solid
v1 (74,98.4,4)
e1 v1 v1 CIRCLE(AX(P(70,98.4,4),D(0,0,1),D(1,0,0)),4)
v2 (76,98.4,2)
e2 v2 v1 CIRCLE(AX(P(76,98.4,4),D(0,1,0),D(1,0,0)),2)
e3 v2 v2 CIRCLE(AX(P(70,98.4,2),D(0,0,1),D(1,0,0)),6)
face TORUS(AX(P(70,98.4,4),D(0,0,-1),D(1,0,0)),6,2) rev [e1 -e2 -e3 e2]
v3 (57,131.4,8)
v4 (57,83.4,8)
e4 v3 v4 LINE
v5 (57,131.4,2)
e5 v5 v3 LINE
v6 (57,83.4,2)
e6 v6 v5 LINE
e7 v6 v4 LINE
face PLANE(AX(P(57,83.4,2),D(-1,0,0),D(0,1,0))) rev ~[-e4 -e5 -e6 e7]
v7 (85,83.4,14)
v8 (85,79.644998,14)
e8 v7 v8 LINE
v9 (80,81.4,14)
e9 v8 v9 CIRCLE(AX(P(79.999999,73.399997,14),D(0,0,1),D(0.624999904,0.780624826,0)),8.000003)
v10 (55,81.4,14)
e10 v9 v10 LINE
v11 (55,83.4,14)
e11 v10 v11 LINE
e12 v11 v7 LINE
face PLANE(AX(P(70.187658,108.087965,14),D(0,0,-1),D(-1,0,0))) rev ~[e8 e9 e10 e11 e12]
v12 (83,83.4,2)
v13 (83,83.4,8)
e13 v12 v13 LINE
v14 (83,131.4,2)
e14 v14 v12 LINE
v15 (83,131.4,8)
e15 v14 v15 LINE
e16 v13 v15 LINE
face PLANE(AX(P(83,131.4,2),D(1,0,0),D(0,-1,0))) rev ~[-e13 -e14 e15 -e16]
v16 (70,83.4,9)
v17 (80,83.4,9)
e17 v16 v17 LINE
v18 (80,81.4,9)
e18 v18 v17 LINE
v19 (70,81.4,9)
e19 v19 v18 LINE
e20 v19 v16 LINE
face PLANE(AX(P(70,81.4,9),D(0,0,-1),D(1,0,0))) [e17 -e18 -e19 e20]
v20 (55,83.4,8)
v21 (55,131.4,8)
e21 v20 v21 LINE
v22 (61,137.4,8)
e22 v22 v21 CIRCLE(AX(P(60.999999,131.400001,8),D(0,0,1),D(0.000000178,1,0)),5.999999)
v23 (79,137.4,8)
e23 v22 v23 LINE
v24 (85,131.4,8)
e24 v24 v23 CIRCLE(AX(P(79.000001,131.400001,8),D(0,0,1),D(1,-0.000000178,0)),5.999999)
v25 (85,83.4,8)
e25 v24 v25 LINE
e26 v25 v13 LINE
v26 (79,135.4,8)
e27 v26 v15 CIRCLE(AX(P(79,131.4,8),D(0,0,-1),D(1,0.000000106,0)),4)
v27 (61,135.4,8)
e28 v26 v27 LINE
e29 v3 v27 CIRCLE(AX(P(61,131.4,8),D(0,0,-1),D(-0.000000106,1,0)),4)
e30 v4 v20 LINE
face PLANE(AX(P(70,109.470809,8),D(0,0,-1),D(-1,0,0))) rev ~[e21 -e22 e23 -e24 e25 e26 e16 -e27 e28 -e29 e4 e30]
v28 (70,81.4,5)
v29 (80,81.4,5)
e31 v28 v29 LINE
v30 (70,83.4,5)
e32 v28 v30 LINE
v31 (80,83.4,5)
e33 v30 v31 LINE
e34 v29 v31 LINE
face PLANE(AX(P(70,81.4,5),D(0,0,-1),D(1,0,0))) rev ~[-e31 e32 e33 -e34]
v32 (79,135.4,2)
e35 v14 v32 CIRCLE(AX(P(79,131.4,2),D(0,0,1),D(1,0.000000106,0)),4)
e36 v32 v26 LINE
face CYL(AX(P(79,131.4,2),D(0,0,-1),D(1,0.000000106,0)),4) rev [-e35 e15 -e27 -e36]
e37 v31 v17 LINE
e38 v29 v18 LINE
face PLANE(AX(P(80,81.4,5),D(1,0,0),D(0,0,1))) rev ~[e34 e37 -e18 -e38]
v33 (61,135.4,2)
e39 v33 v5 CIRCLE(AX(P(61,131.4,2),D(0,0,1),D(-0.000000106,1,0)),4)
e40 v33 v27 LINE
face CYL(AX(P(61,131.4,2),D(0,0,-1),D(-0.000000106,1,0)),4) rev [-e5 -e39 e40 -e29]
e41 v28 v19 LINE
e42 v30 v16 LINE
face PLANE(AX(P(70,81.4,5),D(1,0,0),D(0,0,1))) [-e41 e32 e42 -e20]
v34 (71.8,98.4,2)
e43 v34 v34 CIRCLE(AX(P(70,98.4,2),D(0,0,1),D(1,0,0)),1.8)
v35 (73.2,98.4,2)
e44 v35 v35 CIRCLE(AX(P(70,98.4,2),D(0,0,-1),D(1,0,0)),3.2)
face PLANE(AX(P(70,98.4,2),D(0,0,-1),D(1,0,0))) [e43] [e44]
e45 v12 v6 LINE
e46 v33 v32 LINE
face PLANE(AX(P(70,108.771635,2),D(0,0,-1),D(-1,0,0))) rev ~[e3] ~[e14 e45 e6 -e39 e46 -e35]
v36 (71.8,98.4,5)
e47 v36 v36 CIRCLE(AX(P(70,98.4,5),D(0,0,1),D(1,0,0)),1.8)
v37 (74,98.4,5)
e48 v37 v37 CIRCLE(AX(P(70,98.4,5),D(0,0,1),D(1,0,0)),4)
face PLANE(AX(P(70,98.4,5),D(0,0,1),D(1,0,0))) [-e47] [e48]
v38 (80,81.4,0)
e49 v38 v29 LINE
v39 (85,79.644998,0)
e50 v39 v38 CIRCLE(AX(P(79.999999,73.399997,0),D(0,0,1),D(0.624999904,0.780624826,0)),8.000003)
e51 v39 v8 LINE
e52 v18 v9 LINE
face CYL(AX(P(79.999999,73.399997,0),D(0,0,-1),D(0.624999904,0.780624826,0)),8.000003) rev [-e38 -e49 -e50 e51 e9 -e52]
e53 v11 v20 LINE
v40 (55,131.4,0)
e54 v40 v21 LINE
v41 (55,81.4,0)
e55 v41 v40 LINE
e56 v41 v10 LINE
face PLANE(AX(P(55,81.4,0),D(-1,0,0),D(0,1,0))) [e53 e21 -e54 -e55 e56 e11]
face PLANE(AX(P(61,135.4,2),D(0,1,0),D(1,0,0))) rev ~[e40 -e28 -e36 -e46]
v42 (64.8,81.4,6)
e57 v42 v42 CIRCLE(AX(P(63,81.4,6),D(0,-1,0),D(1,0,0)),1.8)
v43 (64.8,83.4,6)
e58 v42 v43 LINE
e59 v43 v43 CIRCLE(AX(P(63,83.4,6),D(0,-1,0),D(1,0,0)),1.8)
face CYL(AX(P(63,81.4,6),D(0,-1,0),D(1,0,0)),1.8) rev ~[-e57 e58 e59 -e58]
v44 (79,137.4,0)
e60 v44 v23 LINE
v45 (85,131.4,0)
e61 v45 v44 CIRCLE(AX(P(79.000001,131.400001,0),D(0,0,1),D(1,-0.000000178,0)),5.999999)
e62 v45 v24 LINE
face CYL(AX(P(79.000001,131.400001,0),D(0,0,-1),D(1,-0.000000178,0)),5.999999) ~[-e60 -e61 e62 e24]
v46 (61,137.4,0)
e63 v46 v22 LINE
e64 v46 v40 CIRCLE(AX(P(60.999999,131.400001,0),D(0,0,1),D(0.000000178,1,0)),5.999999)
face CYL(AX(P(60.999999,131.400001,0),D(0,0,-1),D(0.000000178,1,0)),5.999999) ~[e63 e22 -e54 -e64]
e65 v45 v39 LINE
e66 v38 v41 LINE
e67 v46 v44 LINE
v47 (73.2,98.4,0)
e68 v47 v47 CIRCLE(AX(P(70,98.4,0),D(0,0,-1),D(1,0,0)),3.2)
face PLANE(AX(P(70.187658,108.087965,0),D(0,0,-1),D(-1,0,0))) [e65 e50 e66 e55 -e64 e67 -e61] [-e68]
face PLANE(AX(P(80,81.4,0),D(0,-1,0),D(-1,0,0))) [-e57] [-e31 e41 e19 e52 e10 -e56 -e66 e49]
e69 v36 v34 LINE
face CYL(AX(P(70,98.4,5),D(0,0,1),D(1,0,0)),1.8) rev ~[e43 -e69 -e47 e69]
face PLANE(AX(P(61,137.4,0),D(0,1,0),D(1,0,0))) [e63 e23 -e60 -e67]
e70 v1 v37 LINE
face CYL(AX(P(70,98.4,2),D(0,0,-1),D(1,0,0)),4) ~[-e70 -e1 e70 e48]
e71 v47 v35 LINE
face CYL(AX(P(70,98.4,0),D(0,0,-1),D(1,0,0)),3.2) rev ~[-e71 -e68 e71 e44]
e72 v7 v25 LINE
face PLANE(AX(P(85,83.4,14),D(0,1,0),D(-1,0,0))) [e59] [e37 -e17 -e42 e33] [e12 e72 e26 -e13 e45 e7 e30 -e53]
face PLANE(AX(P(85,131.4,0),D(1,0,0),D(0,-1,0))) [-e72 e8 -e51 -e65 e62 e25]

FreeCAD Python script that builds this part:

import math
import FreeCAD as App
import Part
import Sketcher
from FreeCAD import Vector


def edges_at(feature, points):
    """Names of the edges that pass closest to the given points."""
    edges = feature.Shape.Edges
    near = lambda p: min(range(len(edges)), key=lambda i: edges[i].distToShape(Part.Vertex(*p))[0])
    return sorted({f"Edge{near(p) + 1}" for p in points})

doc = App.newDocument("Part")
body = doc.addObject("PartDesign::Body", "Body")

sketch1 = body.newObject("Sketcher::SketchObject", "Sketch")
sketch1.AttachmentSupport = (doc.getObject("XY_Plane"), [""])
sketch1.MapMode = "FlatFace"
sketch1.addGeometry([
    Part.LineSegment(Vector(79, 137, 0), Vector(61, 137, 0)),
    Part.ArcOfCircle(Part.Circle(Vector(61, 131, 0), Vector(0, 0, 1), 6), math.radians(90), math.radians(180)),
    Part.LineSegment(Vector(55, 131, 0), Vector(55, 81, 0)),
    Part.LineSegment(Vector(55, 81, 0), Vector(80, 81, 0)),
    Part.ArcOfCircle(Part.Circle(Vector(80, 73, 0), Vector(0, 0, 1), 8), math.radians(51), math.radians(90)),
    Part.LineSegment(Vector(85, 80, 0), Vector(85, 131, 0)),
    Part.ArcOfCircle(Part.Circle(Vector(79, 131, 0), Vector(0, 0, 1), 6), math.radians(0), math.radians(90)),
], False)
sketch1.addConstraint([
    Sketcher.Constraint("Tangent", 0, 2, 1, 1),
    Sketcher.Constraint("Tangent", 1, 2, 2, 1),
    Sketcher.Constraint("Coincident", 2, 2, 3, 1),
    Sketcher.Constraint("Tangent", 3, 2, 4, 2),
    Sketcher.Constraint("Coincident", 4, 1, 5, 1),
    Sketcher.Constraint("Tangent", 5, 2, 6, 1),
    Sketcher.Constraint("Tangent", 6, 2, 0, 1),
    Sketcher.Constraint("Horizontal", 0),
    Sketcher.Constraint("Vertical", 2),
    Sketcher.Constraint("Horizontal", 3),
    Sketcher.Constraint("Vertical", 5),
    Sketcher.Constraint("Equal", 1, 6),
    Sketcher.Constraint("Radius", 1, 5.999999),
    Sketcher.Constraint("DistanceX", 0, 2, 0, 1, 18.0),
    Sketcher.Constraint("DistanceX", 3, 1, 3, 2, 25.0),
    Sketcher.Constraint("DistanceY", 2, 2, 2, 1, 50.0),
    Sketcher.Constraint("DistanceX", -1, 1, 1, 3, 60.999999),
    Sketcher.Constraint("DistanceY", -1, 1, 1, 3, 131.400001),
    Sketcher.Constraint("Radius", 4, 8.000003),
])
pad1 = body.newObject("PartDesign::Pad", "Pad")
pad1.Profile = sketch1
pad1.Length = 14

sketch2 = body.newObject("Sketcher::SketchObject", "Sketch001")
sketch2.AttachmentSupport = (doc.getObject("XY_Plane"), [""])
sketch2.MapMode = "FlatFace"
sketch2.AttachmentOffset = App.Placement(Vector(0, 0, 2), App.Rotation())
sketch2.addGeometry([
    Part.LineSegment(Vector(79, 135.4, 0), Vector(61, 135.4, 0)),
    Part.ArcOfCircle(Part.Circle(Vector(61, 131.4, 0), Vector(0, 0, 1), 4), math.radians(90), math.radians(180)),
    Part.LineSegment(Vector(57, 131.4, 0), Vector(57, 83.4, 0)),
    Part.LineSegment(Vector(57, 83.4, 0), Vector(83, 83.4, 0)),
    Part.LineSegment(Vector(83, 83.4, 0), Vector(83, 131.4, 0)),
    Part.ArcOfCircle(Part.Circle(Vector(79, 131.4, 0), Vector(0, 0, 1), 4), math.radians(0), math.radians(90)),
], False)
sketch2.addConstraint([
    Sketcher.Constraint("Tangent", 0, 2, 1, 1),
    Sketcher.Constraint("Tangent", 1, 2, 2, 1),
    Sketcher.Constraint("Coincident", 2, 2, 3, 1),
    Sketcher.Constraint("Coincident", 3, 2, 4, 1),
    Sketcher.Constraint("Tangent", 4, 2, 5, 1),
    Sketcher.Constraint("Tangent", 5, 2, 0, 1),
    Sketcher.Constraint("Horizontal", 0),
    Sketcher.Constraint("Vertical", 2),
    Sketcher.Constraint("Horizontal", 3),
    Sketcher.Constraint("Vertical", 4),
    Sketcher.Constraint("Equal", 1, 5),
    Sketcher.Constraint("Radius", 1, 4.0),
    Sketcher.Constraint("DistanceX", 0, 2, 0, 1, 18.0),
    Sketcher.Constraint("DistanceY", 2, 2, 2, 1, 48.0),
    Sketcher.Constraint("DistanceX", -1, 1, 1, 3, 61.0),
    Sketcher.Constraint("DistanceY", -1, 1, 1, 3, 131.4),
])
pocket1 = body.newObject("PartDesign::Pocket", "Pocket")
pocket1.Profile = sketch2
pocket1.Length = 12
pocket1.Reversed = True

sketch3 = body.newObject("Sketcher::SketchObject", "Sketch002")
sketch3.AttachmentSupport = (doc.getObject("XY_Plane"), [""])
sketch3.MapMode = "FlatFace"
sketch3.AttachmentOffset = App.Placement(Vector(0, 0, 14), App.Rotation())
sketch3.addGeometry([
    Part.LineSegment(Vector(79, 137, 0), Vector(61, 137, 0)),
    Part.ArcOfCircle(Part.Circle(Vector(61, 131, 0), Vector(0, 0, 1), 6), math.radians(90), math.radians(180)),
    Part.LineSegment(Vector(55, 131, 0), Vector(55, 83, 0)),
    Part.LineSegment(Vector(55, 83, 0), Vector(85, 83, 0)),
    Part.LineSegment(Vector(85, 83, 0), Vector(85, 131, 0)),
    Part.ArcOfCircle(Part.Circle(Vector(79, 131, 0), Vector(0, 0, 1), 6), math.radians(0), math.radians(90)),
], False)
sketch3.addConstraint([
    Sketcher.Constraint("Tangent", 0, 2, 1, 1),
    Sketcher.Constraint("Tangent", 1, 2, 2, 1),
    Sketcher.Constraint("Coincident", 2, 2, 3, 1),
    Sketcher.Constraint("Coincident", 3, 2, 4, 1),
    Sketcher.Constraint("Tangent", 4, 2, 5, 1),
    Sketcher.Constraint("Tangent", 5, 2, 0, 1),
    Sketcher.Constraint("Horizontal", 0),
    Sketcher.Constraint("Vertical", 2),
    Sketcher.Constraint("Horizontal", 3),
    Sketcher.Constraint("Vertical", 4),
    Sketcher.Constraint("Equal", 1, 5),
    Sketcher.Constraint("Radius", 1, 5.999999),
    Sketcher.Constraint("DistanceX", 0, 2, 0, 1, 18.0),
    Sketcher.Constraint("DistanceY", 2, 2, 2, 1, 48.0),
    Sketcher.Constraint("DistanceX", -1, 1, 1, 3, 60.999999),
    Sketcher.Constraint("DistanceY", -1, 1, 1, 3, 131.400001),
])
pocket2 = body.newObject("PartDesign::Pocket", "Pocket001")
pocket2.Profile = sketch3
pocket2.Length = 6

sketch4 = body.newObject("Sketcher::SketchObject", "Sketch003")
sketch4.AttachmentSupport = (doc.getObject("XY_Plane"), [""])
sketch4.MapMode = "FlatFace"
sketch4.AttachmentOffset = App.Placement(Vector(0, 0, 2), App.Rotation())
sketch4.addGeometry(Part.Circle(Vector(70, 98.4, 0), Vector(0, 0, 1), 4), False)
sketch4.addConstraint([
    Sketcher.Constraint("Diameter", 0, 8.0),
    Sketcher.Constraint("DistanceX", -1, 1, 0, 3, 70.0),
    Sketcher.Constraint("DistanceY", -1, 1, 0, 3, 98.4),
])
pad2 = body.newObject("PartDesign::Pad", "Pad001")
pad2.Profile = sketch4
pad2.Length = 3

sketch5 = body.newObject("Sketcher::SketchObject", "Sketch004")
sketch5.AttachmentSupport = (doc.getObject("XY_Plane"), [""])
sketch5.MapMode = "FlatFace"
sketch5.AttachmentOffset = App.Placement(Vector(0, 0, 5), App.Rotation())
sketch5.addGeometry(Part.Circle(Vector(70, 98.4, 0), Vector(0, 0, 1), 1.8), False)
sketch5.addConstraint([
    Sketcher.Constraint("Diameter", 0, 3.6),
    Sketcher.Constraint("DistanceX", -1, 1, 0, 3, 70.0),
    Sketcher.Constraint("DistanceY", -1, 1, 0, 3, 98.4),
])
pocket3 = body.newObject("PartDesign::Pocket", "Pocket002")
pocket3.Profile = sketch5
pocket3.Type = "ThroughAll"

sketch6 = body.newObject("Sketcher::SketchObject", "Sketch005")
sketch6.AttachmentSupport = (doc.getObject("XZ_Plane"), [""])
sketch6.MapMode = "FlatFace"
sketch6.AttachmentOffset = App.Placement(Vector(0, 0, -81.4), App.Rotation())
sketch6.addGeometry([
    Part.Circle(Vector(63, 6, 0), Vector(0, 0, 1), 1.8),
    Part.LineSegment(Vector(70, 9, 0), Vector(70, 5, 0)),
    Part.LineSegment(Vector(70, 5, 0), Vector(80, 5, 0)),
    Part.LineSegment(Vector(80, 5, 0), Vector(80, 9, 0)),
    Part.LineSegment(Vector(80, 9, 0), Vector(70, 9, 0)),
], False)
sketch6.addConstraint([
    Sketcher.Constraint("Coincident", 1, 2, 2, 1),
    Sketcher.Constraint("Coincident", 2, 2, 3, 1),
    Sketcher.Constraint("Coincident", 3, 2, 4, 1),
    Sketcher.Constraint("Coincident", 4, 2, 1, 1),
    Sketcher.Constraint("Vertical", 1),
    Sketcher.Constraint("Horizontal", 2),
    Sketcher.Constraint("Vertical", 3),
    Sketcher.Constraint("Horizontal", 4),
    Sketcher.Constraint("Diameter", 0, 3.6),
    Sketcher.Constraint("DistanceX", 2, 1, 2, 2, 10.0),
    Sketcher.Constraint("DistanceY", 1, 2, 1, 1, 4.0),
    Sketcher.Constraint("DistanceX", -1, 1, 0, 3, 63.0),
    Sketcher.Constraint("DistanceY", -1, 1, 0, 3, 6.0),
    Sketcher.Constraint("DistanceX", -1, 1, 1, 2, 70.0),
    Sketcher.Constraint("DistanceY", -1, 1, 1, 2, 5.0),
])
pocket4 = body.newObject("PartDesign::Pocket", "Pocket003")
pocket4.Profile = sketch6
pocket4.Length = 2

sketch7 = body.newObject("Sketcher::SketchObject", "Sketch006")
sketch7.AttachmentSupport = (doc.getObject("XY_Plane"), [""])
sketch7.MapMode = "FlatFace"
sketch7.addGeometry(Part.Circle(Vector(70, 98.4, 0), Vector(0, 0, 1), 3.2), False)
sketch7.addConstraint([
    Sketcher.Constraint("Diameter", 0, 6.4),
    Sketcher.Constraint("DistanceX", -1, 1, 0, 3, 70.0),
    Sketcher.Constraint("DistanceY", -1, 1, 0, 3, 98.4),
])
pocket5 = body.newObject("PartDesign::Pocket", "Pocket004")
pocket5.Profile = sketch7
pocket5.Length = 2
pocket5.Reversed = True
doc.recompute()

fillet = body.newObject("PartDesign::Fillet", "Fillet")
fillet.Base = (pocket5, edges_at(pocket5, [(66, 98.4, 2)]))
fillet.Radius = 2

doc.recompute()
